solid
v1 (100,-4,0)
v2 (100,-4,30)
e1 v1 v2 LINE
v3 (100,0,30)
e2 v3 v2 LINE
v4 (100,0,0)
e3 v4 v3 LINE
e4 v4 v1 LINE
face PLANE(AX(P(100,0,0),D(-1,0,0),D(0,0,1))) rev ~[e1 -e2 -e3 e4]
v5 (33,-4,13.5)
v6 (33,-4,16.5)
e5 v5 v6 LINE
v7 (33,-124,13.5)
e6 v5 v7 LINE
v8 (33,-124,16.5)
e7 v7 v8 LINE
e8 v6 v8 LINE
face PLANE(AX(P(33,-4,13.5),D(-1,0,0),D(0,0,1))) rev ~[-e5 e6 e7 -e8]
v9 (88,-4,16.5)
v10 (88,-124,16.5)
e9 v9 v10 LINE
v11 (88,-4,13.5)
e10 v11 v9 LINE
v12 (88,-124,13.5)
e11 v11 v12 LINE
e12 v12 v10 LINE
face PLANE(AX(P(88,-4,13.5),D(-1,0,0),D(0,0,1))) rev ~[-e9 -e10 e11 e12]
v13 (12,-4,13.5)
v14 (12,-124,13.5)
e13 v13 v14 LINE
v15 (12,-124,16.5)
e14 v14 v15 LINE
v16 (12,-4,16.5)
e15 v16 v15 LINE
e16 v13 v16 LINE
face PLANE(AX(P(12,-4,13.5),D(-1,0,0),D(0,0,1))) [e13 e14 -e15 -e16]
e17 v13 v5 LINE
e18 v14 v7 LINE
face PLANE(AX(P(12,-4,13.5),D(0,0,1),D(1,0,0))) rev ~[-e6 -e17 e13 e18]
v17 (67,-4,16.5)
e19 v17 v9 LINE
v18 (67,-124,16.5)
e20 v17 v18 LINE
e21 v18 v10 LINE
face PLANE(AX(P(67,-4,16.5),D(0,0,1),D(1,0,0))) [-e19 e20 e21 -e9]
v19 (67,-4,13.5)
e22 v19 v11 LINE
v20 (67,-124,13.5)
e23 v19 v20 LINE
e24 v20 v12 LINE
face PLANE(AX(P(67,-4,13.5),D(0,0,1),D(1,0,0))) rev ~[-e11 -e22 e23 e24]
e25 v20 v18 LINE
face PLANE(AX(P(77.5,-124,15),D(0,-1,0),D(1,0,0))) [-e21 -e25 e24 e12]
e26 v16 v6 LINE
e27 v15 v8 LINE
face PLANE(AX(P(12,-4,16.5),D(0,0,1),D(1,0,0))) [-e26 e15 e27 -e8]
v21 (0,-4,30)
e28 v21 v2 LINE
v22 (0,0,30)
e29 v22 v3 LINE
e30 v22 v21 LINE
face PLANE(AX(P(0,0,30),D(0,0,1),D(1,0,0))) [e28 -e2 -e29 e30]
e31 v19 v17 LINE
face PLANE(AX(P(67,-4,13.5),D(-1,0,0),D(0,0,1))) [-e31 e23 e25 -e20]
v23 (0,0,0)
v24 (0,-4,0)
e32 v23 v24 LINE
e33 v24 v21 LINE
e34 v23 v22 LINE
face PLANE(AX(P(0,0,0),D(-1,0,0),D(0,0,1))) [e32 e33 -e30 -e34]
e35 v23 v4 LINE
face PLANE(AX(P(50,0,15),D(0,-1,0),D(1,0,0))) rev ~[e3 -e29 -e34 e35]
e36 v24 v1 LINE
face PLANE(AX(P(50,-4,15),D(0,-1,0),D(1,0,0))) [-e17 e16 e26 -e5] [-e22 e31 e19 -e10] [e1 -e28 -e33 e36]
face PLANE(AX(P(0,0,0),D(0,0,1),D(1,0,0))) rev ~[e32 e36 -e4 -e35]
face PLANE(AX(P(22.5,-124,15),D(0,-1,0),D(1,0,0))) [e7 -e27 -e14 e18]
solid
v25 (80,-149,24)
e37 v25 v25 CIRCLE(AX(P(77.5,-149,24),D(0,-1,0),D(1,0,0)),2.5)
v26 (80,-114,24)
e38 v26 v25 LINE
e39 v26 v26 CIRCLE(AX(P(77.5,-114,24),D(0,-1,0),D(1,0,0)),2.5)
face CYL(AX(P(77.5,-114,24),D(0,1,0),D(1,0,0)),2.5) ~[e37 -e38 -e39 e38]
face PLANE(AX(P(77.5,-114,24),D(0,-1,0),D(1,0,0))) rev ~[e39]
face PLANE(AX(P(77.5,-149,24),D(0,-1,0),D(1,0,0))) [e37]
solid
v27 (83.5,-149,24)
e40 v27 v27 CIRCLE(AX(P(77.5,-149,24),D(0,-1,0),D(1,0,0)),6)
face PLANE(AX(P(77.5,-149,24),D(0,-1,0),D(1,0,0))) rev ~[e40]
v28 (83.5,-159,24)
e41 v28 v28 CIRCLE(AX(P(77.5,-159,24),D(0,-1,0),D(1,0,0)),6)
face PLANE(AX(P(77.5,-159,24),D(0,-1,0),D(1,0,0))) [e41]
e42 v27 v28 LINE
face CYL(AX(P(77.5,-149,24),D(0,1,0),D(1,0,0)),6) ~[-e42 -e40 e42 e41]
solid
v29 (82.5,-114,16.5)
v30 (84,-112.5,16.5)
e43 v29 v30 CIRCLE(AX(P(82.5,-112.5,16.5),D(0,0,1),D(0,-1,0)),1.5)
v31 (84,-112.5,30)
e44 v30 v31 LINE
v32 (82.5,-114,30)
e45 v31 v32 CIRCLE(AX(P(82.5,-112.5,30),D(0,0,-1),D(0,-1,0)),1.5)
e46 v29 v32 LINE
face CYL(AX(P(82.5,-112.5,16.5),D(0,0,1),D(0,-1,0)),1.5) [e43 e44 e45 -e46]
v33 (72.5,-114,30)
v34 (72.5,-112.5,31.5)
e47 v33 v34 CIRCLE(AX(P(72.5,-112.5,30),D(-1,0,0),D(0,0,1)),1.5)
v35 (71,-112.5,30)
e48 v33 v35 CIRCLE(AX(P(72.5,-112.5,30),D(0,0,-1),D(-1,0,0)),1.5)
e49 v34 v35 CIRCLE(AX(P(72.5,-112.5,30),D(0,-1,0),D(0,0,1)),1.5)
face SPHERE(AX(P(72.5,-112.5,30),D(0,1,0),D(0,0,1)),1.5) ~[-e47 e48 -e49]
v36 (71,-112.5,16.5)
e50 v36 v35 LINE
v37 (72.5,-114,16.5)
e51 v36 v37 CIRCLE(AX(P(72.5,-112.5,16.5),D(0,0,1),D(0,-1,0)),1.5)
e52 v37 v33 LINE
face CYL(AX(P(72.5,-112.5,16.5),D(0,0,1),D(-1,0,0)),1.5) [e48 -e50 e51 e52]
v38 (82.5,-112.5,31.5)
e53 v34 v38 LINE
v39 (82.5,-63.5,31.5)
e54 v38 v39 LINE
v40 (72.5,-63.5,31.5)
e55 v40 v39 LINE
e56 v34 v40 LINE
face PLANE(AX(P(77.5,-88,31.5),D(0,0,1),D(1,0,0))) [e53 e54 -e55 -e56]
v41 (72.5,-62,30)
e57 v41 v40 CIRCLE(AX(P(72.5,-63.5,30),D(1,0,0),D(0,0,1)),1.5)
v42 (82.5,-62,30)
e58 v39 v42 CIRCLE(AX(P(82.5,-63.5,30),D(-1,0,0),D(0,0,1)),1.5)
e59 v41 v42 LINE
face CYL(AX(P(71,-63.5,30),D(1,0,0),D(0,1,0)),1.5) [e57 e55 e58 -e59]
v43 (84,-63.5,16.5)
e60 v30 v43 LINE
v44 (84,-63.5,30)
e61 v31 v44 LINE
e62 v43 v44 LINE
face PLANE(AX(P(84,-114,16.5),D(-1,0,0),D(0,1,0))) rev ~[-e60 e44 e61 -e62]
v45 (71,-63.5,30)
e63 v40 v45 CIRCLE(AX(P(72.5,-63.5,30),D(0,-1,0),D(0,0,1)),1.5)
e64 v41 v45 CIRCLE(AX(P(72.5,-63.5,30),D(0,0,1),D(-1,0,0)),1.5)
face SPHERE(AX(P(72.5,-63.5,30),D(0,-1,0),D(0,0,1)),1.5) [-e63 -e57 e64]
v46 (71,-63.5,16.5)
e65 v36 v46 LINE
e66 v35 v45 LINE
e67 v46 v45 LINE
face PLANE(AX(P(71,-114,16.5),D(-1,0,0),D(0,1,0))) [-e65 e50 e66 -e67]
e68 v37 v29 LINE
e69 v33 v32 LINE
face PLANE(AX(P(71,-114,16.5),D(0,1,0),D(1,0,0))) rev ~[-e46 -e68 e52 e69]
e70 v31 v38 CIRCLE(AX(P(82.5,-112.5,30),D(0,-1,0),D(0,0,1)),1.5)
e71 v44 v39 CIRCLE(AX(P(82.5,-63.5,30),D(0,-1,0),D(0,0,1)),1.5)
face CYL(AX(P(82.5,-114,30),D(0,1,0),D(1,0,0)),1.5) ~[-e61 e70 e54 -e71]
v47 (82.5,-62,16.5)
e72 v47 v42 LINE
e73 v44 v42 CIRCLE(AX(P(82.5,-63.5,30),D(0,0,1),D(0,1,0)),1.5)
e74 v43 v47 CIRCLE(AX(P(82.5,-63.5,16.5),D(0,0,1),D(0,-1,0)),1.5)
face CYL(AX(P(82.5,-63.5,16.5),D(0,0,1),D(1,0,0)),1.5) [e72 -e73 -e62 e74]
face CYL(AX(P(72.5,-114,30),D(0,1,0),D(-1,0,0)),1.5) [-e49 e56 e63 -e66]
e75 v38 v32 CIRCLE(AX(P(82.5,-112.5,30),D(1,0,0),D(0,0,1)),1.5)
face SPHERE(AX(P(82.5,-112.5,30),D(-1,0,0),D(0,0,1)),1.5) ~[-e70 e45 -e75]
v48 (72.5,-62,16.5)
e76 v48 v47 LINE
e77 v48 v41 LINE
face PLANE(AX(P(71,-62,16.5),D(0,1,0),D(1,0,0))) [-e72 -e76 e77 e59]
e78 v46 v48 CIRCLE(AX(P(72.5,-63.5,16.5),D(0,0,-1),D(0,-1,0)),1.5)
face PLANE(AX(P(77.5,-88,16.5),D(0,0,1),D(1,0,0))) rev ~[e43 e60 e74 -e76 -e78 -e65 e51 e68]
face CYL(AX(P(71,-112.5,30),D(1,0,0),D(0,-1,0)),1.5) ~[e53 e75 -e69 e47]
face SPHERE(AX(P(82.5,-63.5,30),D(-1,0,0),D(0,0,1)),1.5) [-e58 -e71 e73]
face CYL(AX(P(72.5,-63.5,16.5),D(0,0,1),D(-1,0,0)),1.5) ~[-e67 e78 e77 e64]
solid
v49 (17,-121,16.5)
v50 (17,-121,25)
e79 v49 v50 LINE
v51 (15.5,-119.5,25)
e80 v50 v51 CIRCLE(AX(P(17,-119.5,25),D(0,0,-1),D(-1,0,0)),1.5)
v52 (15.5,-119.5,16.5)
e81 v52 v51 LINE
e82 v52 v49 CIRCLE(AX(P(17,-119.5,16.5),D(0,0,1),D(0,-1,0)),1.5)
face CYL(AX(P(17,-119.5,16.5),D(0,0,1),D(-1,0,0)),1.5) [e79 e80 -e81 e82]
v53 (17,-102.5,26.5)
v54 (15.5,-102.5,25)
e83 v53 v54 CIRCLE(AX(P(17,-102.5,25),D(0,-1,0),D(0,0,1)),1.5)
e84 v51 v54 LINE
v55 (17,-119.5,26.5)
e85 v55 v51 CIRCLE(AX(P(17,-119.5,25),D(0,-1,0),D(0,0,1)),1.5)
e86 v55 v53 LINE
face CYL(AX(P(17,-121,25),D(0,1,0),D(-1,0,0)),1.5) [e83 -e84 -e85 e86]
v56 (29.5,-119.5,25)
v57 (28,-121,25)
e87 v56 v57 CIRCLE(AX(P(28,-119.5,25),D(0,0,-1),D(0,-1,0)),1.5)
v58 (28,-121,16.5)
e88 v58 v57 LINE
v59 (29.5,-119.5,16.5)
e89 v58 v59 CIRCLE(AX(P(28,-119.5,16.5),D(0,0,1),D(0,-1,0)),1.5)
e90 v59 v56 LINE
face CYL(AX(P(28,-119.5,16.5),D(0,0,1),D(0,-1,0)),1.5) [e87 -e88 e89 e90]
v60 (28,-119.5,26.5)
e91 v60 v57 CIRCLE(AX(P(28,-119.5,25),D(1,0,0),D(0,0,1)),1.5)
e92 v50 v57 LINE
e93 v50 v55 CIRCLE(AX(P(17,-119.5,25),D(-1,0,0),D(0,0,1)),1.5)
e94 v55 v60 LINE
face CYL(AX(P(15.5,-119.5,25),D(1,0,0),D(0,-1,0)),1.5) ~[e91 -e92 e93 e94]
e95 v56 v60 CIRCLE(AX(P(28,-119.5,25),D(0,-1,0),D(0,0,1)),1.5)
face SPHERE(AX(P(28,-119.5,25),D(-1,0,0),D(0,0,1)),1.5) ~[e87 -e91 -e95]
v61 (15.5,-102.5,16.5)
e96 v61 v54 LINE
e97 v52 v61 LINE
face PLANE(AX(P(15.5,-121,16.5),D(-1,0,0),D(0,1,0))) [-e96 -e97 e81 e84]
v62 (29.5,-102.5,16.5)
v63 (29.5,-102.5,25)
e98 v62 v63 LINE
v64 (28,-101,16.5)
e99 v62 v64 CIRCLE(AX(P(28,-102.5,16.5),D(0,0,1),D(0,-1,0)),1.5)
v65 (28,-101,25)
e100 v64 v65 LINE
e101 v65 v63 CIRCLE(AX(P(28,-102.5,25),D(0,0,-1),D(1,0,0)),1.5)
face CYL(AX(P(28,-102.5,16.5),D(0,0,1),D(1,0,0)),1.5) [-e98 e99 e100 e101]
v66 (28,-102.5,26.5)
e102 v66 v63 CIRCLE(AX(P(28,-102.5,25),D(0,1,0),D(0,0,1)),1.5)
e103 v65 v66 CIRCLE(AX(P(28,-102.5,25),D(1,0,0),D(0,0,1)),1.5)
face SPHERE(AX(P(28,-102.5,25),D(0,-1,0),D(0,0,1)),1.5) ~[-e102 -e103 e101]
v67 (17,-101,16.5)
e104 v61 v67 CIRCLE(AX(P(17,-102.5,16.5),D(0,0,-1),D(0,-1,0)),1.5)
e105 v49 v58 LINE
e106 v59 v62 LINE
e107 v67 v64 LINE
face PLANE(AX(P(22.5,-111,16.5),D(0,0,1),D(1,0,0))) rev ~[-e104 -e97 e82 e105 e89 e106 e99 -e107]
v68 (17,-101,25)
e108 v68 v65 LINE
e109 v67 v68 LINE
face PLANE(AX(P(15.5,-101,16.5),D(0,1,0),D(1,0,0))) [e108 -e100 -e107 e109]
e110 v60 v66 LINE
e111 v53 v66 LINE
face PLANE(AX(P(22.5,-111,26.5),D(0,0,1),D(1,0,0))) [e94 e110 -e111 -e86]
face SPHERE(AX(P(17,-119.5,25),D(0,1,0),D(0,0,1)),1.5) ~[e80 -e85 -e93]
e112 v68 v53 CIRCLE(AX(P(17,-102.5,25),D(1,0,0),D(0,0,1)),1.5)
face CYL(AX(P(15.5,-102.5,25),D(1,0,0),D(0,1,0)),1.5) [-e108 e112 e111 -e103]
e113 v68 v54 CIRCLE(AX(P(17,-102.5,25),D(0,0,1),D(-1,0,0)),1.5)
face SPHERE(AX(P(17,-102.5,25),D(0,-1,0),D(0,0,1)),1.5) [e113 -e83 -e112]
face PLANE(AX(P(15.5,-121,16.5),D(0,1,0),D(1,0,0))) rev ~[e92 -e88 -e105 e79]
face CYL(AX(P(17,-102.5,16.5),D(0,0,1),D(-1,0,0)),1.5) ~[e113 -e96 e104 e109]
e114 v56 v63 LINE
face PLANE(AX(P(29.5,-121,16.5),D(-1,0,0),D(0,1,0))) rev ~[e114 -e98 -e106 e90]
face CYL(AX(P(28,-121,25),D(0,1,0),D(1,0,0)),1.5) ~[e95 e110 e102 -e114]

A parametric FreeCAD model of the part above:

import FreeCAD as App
import Part
import Sketcher


def edges_at(feature, points):
    """Names of the edges that pass closest to the given points."""
    edges = feature.Shape.Edges
    near = lambda p: min(range(len(edges)), key=lambda i: edges[i].distToShape(Part.Vertex(*p))[0])
    return sorted({f"Edge{near(p) + 1}" for p in points})

doc = App.newDocument("Part")
body = doc.addObject("PartDesign::Body", "Body")

# Sketch on XZ plane
sketch1 = body.newObject("Sketcher::SketchObject", "Sketch")
sketch1.AttachmentSupport = (doc.getObject("XZ_Plane"), [""])
sketch1.MapMode = "FlatFace"
sketch1.addGeometry(Part.LineSegment(App.Vector(0, 30, 0), App.Vector(0, 0, 0)), False)
sketch1.addGeometry(Part.LineSegment(App.Vector(0, 0, 0), App.Vector(100, 0, 0)), False)
sketch1.addGeometry(Part.LineSegment(App.Vector(100, 0, 0), App.Vector(100, 30, 0)), False)
sketch1.addGeometry(Part.LineSegment(App.Vector(100, 30, 0), App.Vector(0, 30, 0)), False)
sketch1.addConstraint(Sketcher.Constraint("Coincident", 0, 2, 1, 1))
sketch1.addConstraint(Sketcher.Constraint("Coincident", 1, 2, 2, 1))
sketch1.addConstraint(Sketcher.Constraint("Coincident", 2, 2, 3, 1))
sketch1.addConstraint(Sketcher.Constraint("Coincident", 3, 2, 0, 1))
sketch1.addConstraint(Sketcher.Constraint("Vertical", 0))
sketch1.addConstraint(Sketcher.Constraint("Horizontal", 1))
sketch1.addConstraint(Sketcher.Constraint("Vertical", 2))
sketch1.addConstraint(Sketcher.Constraint("Horizontal", 3))
sketch1.addConstraint(Sketcher.Constraint("Coincident", 0, 2, -1, 1))
sketch1.addConstraint(Sketcher.Constraint("DistanceX", 1, 1, 1, 2, 100.0))
sketch1.addConstraint(Sketcher.Constraint("DistanceY", 0, 2, 0, 1, 30.0))
pad1 = body.newObject("PartDesign::Pad", "Pad")
pad1.Profile = sketch1
pad1.Length = 4

# Sketch on XZ plane
sketch2 = body.newObject("Sketcher::SketchObject", "Sketch001")
sketch2.AttachmentSupport = (doc.getObject("XZ_Plane"), [""])
sketch2.MapMode = "FlatFace"
sketch2.AttachmentOffset = App.Placement(App.Vector(0, 0, 4), App.Rotation())
sketch2.addGeometry(Part.LineSegment(App.Vector(12, 16.5, 0), App.Vector(12, 13.5, 0)), False)
sketch2.addGeometry(Part.LineSegment(App.Vector(12, 13.5, 0), App.Vector(33, 13.5, 0)), False)
sketch2.addGeometry(Part.LineSegment(App.Vector(33, 13.5, 0), App.Vector(33, 16.5, 0)), False)
sketch2.addGeometry(Part.LineSegment(App.Vector(33, 16.5, 0), App.Vector(12, 16.5, 0)), False)
sketch2.addGeometry(Part.LineSegment(App.Vector(67, 16.5, 0), App.Vector(67, 13.5, 0)), False)
sketch2.addGeometry(Part.LineSegment(App.Vector(67, 13.5, 0), App.Vector(88, 13.5, 0)), False)
sketch2.addGeometry(Part.LineSegment(App.Vector(88, 13.5, 0), App.Vector(88, 16.5, 0)), False)
sketch2.addGeometry(Part.LineSegment(App.Vector(88, 16.5, 0), App.Vector(67, 16.5, 0)), False)
sketch2.addConstraint(Sketcher.Constraint("Coincident", 0, 2, 1, 1))
sketch2.addConstraint(Sketcher.Constraint("Coincident", 1, 2, 2, 1))
sketch2.addConstraint(Sketcher.Constraint("Coincident", 2, 2, 3, 1))
sketch2.addConstraint(Sketcher.Constraint("Coincident", 3, 2, 0, 1))
sketch2.addConstraint(Sketcher.Constraint("Coincident", 4, 2, 5, 1))
sketch2.addConstraint(Sketcher.Constraint("Coincident", 5, 2, 6, 1))
sketch2.addConstraint(Sketcher.Constraint("Coincident", 6, 2, 7, 1))
sketch2.addConstraint(Sketcher.Constraint("Coincident", 7, 2, 4, 1))
sketch2.addConstraint(Sketcher.Constraint("Vertical", 0))
sketch2.addConstraint(Sketcher.Constraint("Horizontal", 1))
sketch2.addConstraint(Sketcher.Constraint("Vertical", 2))
sketch2.addConstraint(Sketcher.Constraint("Horizontal", 3))
sketch2.addConstraint(Sketcher.Constraint("Vertical", 4))
sketch2.addConstraint(Sketcher.Constraint("Horizontal", 5))
sketch2.addConstraint(Sketcher.Constraint("Vertical", 6))
sketch2.addConstraint(Sketcher.Constraint("Horizontal", 7))
sketch2.addConstraint(Sketcher.Constraint("Horizontal", 1, 2, 4, 2))
sketch2.addConstraint(Sketcher.Constraint("Horizontal", 3, 2, 6, 2))
sketch2.addConstraint(Sketcher.Constraint("Equal", 3, 5))
sketch2.addConstraint(Sketcher.Constraint("DistanceX", 1, 1, 1, 2, 21.0))
sketch2.addConstraint(Sketcher.Constraint("DistanceY", 0, 2, 0, 1, 3.0))
sketch2.addConstraint(Sketcher.Constraint("DistanceX", -1, 1, 0, 2, 12.0))
sketch2.addConstraint(Sketcher.Constraint("DistanceX", -1, 1, 4, 2, 67.0))
sketch2.addConstraint(Sketcher.Constraint("DistanceY", -1, 1, 0, 2, 13.5))
pad2 = body.newObject("PartDesign::Pad", "Pad001")
pad2.Profile = sketch2
pad2.Length = 120
body2 = doc.addObject("PartDesign::Body", "Body001")

# Sketch on XY plane
sketch3 = body2.newObject("Sketcher::SketchObject", "Sketch002")
sketch3.AttachmentSupport = (doc.getObject("XY_Plane001"), [""])
sketch3.MapMode = "FlatFace"
sketch3.AttachmentOffset = App.Placement(App.Vector(0, 0, 16.5), App.Rotation())
sketch3.addGeometry(Part.LineSegment(App.Vector(71, -62, 0), App.Vector(71, -114, 0)), False)
sketch3.addGeometry(Part.LineSegment(App.Vector(71, -114, 0), App.Vector(84, -114, 0)), False)
sketch3.addGeometry(Part.LineSegment(App.Vector(84, -114, 0), App.Vector(84, -62, 0)), False)
sketch3.addGeometry(Part.LineSegment(App.Vector(84, -62, 0), App.Vector(71, -62, 0)), False)
sketch3.addConstraint(Sketcher.Constraint("Coincident", 0, 2, 1, 1))
sketch3.addConstraint(Sketcher.Constraint("Coincident", 1, 2, 2, 1))
sketch3.addConstraint(Sketcher.Constraint("Coincident", 2, 2, 3, 1))
sketch3.addConstraint(Sketcher.Constraint("Coincident", 3, 2, 0, 1))
sketch3.addConstraint(Sketcher.Constraint("Vertical", 0))
sketch3.addConstraint(Sketcher.Constraint("Horizontal", 1))
sketch3.addConstraint(Sketcher.Constraint("Vertical", 2))
sketch3.addConstraint(Sketcher.Constraint("Horizontal", 3))
sketch3.addConstraint(Sketcher.Constraint("DistanceX", 1, 1, 1, 2, 13.0))
sketch3.addConstraint(Sketcher.Constraint("DistanceY", 0, 2, 0, 1, 52.0))
sketch3.addConstraint(Sketcher.Constraint("DistanceX", -1, 1, 0, 2, 71.0))
sketch3.addConstraint(Sketcher.Constraint("DistanceY", 0, 2, -1, 1, 114.0))
pad3 = body2.newObject("PartDesign::Pad", "Pad002")
pad3.Profile = sketch3
pad3.Length = 15
doc.recompute()

fillet = body2.newObject("PartDesign::Fillet", "Fillet")
fillet.Base = (pad3, edges_at(pad3, [
    (71, -88, 31.5),
    (77.5, -62, 31.5),
    (77.5, -114, 31.5),
    (84, -88, 31.5),
    (84, -114, 24),
    (71, -114, 24),
    (84, -62, 24),
    (71, -62, 24),
]))
fillet.Radius = 1.5
body3 = doc.addObject("PartDesign::Body", "Body002")

# Sketch on XZ plane
sketch4 = body3.newObject("Sketcher::SketchObject", "Sketch003")
sketch4.AttachmentSupport = (doc.getObject("XZ_Plane002"), [""])
sketch4.MapMode = "FlatFace"
sketch4.AttachmentOffset = App.Placement(App.Vector(0, 0, 114), App.Rotation())
sketch4.addGeometry(Part.Circle(App.Vector(77.5, 24, 0), App.Vector(0, 0, 1), 2.5), False)
sketch4.addConstraint(Sketcher.Constraint("Diameter", 0, 5.0))
sketch4.addConstraint(Sketcher.Constraint("DistanceY", -1, 1, 0, 3, 24.0))
sketch4.addConstraint(Sketcher.Constraint("DistanceX", -1, 1, 0, 3, 77.5))
pad4 = body3.newObject("PartDesign::Pad", "Pad003")
pad4.Profile = sketch4
pad4.Length = 35
body4 = doc.addObject("PartDesign::Body", "Body003")

# Sketch on XZ plane
sketch5 = body4.newObject("Sketcher::SketchObject", "Sketch004")
sketch5.AttachmentSupport = (doc.getObject("XZ_Plane003"), [""])
sketch5.MapMode = "FlatFace"
sketch5.AttachmentOffset = App.Placement(App.Vector(0, 0, 149), App.Rotation())
sketch5.addGeometry(Part.Circle(App.Vector(78, 24, 0), App.Vector(0, 0, 1), 6), False)
sketch5.addConstraint(Sketcher.Constraint("Diameter", 0, 12.0))
sketch5.addConstraint(Sketcher.Constraint("DistanceY", -1, 1, 0, 3, 24.0))
sketch5.addConstraint(Sketcher.Constraint("DistanceX", -1, 1, 0, 3, 77.5))
pad5 = body4.newObject("PartDesign::Pad", "Pad004")
pad5.Profile = sketch5
pad5.Length = 10
body5 = doc.addObject("PartDesign::Body", "Body004")

# Sketch on XY plane
sketch6 = body5.newObject("Sketcher::SketchObject", "Sketch005")
sketch6.AttachmentSupport = (doc.getObject("XY_Plane004"), [""])
sketch6.MapMode = "FlatFace"
sketch6.AttachmentOffset = App.Placement(App.Vector(0, 0, 16.5), App.Rotation())
sketch6.addGeometry(Part.LineSegment(App.Vector(16, -101, 0), App.Vector(16, -121, 0)), False)
sketch6.addGeometry(Part.LineSegment(App.Vector(16, -121, 0), App.Vector(30, -121, 0)), False)
sketch6.addGeometry(Part.LineSegment(App.Vector(30, -121, 0), App.Vector(30, -101, 0)), False)
sketch6.addGeometry(Part.LineSegment(App.Vector(30, -101, 0), App.Vector(16, -101, 0)), False)
sketch6.addConstraint(Sketcher.Constraint("Coincident", 0, 2, 1, 1))
sketch6.addConstraint(Sketcher.Constraint("Coincident", 1, 2, 2, 1))
sketch6.addConstraint(Sketcher.Constraint("Coincident", 2, 2, 3, 1))
sketch6.addConstraint(Sketcher.Constraint("Coincident", 3, 2, 0, 1))
sketch6.addConstraint(Sketcher.Constraint("Vertical", 0))
sketch6.addConstraint(Sketcher.Constraint("Horizontal", 1))
sketch6.addConstraint(Sketcher.Constraint("Vertical", 2))
sketch6.addConstraint(Sketcher.Constraint("Horizontal", 3))
sketch6.addConstraint(Sketcher.Constraint("DistanceX", 1, 1, 1, 2, 14.0))
sketch6.addConstraint(Sketcher.Constraint("DistanceY", 0, 2, 0, 1, 20.0))
sketch6.addConstraint(Sketcher.Constraint("DistanceY", 0, 2, -1, 1, 121.0))
sketch6.addConstraint(Sketcher.Constraint("DistanceX", -1, 1, 0, 2, 15.5))
pad6 = body5.newObject("PartDesign::Pad", "Pad005")
pad6.Profile = sketch6
pad6.Length = 10
doc.recompute()

fillet2 = body5.newObject("PartDesign::Fillet", "Fillet001")
fillet2.Base = (pad6, edges_at(pad6, [
    (15.5, -111, 26.5),
    (22.5, -121, 26.5),
    (29.5, -111, 26.5),
    (22.5, -101, 26.5),
    (15.5, -121, 21.5),
    (29.5, -121, 21.5),
    (15.5, -101, 21.5),
    (29.5, -101, 21.5),
]))
fillet2.Radius = 1.5

doc.recompute()
